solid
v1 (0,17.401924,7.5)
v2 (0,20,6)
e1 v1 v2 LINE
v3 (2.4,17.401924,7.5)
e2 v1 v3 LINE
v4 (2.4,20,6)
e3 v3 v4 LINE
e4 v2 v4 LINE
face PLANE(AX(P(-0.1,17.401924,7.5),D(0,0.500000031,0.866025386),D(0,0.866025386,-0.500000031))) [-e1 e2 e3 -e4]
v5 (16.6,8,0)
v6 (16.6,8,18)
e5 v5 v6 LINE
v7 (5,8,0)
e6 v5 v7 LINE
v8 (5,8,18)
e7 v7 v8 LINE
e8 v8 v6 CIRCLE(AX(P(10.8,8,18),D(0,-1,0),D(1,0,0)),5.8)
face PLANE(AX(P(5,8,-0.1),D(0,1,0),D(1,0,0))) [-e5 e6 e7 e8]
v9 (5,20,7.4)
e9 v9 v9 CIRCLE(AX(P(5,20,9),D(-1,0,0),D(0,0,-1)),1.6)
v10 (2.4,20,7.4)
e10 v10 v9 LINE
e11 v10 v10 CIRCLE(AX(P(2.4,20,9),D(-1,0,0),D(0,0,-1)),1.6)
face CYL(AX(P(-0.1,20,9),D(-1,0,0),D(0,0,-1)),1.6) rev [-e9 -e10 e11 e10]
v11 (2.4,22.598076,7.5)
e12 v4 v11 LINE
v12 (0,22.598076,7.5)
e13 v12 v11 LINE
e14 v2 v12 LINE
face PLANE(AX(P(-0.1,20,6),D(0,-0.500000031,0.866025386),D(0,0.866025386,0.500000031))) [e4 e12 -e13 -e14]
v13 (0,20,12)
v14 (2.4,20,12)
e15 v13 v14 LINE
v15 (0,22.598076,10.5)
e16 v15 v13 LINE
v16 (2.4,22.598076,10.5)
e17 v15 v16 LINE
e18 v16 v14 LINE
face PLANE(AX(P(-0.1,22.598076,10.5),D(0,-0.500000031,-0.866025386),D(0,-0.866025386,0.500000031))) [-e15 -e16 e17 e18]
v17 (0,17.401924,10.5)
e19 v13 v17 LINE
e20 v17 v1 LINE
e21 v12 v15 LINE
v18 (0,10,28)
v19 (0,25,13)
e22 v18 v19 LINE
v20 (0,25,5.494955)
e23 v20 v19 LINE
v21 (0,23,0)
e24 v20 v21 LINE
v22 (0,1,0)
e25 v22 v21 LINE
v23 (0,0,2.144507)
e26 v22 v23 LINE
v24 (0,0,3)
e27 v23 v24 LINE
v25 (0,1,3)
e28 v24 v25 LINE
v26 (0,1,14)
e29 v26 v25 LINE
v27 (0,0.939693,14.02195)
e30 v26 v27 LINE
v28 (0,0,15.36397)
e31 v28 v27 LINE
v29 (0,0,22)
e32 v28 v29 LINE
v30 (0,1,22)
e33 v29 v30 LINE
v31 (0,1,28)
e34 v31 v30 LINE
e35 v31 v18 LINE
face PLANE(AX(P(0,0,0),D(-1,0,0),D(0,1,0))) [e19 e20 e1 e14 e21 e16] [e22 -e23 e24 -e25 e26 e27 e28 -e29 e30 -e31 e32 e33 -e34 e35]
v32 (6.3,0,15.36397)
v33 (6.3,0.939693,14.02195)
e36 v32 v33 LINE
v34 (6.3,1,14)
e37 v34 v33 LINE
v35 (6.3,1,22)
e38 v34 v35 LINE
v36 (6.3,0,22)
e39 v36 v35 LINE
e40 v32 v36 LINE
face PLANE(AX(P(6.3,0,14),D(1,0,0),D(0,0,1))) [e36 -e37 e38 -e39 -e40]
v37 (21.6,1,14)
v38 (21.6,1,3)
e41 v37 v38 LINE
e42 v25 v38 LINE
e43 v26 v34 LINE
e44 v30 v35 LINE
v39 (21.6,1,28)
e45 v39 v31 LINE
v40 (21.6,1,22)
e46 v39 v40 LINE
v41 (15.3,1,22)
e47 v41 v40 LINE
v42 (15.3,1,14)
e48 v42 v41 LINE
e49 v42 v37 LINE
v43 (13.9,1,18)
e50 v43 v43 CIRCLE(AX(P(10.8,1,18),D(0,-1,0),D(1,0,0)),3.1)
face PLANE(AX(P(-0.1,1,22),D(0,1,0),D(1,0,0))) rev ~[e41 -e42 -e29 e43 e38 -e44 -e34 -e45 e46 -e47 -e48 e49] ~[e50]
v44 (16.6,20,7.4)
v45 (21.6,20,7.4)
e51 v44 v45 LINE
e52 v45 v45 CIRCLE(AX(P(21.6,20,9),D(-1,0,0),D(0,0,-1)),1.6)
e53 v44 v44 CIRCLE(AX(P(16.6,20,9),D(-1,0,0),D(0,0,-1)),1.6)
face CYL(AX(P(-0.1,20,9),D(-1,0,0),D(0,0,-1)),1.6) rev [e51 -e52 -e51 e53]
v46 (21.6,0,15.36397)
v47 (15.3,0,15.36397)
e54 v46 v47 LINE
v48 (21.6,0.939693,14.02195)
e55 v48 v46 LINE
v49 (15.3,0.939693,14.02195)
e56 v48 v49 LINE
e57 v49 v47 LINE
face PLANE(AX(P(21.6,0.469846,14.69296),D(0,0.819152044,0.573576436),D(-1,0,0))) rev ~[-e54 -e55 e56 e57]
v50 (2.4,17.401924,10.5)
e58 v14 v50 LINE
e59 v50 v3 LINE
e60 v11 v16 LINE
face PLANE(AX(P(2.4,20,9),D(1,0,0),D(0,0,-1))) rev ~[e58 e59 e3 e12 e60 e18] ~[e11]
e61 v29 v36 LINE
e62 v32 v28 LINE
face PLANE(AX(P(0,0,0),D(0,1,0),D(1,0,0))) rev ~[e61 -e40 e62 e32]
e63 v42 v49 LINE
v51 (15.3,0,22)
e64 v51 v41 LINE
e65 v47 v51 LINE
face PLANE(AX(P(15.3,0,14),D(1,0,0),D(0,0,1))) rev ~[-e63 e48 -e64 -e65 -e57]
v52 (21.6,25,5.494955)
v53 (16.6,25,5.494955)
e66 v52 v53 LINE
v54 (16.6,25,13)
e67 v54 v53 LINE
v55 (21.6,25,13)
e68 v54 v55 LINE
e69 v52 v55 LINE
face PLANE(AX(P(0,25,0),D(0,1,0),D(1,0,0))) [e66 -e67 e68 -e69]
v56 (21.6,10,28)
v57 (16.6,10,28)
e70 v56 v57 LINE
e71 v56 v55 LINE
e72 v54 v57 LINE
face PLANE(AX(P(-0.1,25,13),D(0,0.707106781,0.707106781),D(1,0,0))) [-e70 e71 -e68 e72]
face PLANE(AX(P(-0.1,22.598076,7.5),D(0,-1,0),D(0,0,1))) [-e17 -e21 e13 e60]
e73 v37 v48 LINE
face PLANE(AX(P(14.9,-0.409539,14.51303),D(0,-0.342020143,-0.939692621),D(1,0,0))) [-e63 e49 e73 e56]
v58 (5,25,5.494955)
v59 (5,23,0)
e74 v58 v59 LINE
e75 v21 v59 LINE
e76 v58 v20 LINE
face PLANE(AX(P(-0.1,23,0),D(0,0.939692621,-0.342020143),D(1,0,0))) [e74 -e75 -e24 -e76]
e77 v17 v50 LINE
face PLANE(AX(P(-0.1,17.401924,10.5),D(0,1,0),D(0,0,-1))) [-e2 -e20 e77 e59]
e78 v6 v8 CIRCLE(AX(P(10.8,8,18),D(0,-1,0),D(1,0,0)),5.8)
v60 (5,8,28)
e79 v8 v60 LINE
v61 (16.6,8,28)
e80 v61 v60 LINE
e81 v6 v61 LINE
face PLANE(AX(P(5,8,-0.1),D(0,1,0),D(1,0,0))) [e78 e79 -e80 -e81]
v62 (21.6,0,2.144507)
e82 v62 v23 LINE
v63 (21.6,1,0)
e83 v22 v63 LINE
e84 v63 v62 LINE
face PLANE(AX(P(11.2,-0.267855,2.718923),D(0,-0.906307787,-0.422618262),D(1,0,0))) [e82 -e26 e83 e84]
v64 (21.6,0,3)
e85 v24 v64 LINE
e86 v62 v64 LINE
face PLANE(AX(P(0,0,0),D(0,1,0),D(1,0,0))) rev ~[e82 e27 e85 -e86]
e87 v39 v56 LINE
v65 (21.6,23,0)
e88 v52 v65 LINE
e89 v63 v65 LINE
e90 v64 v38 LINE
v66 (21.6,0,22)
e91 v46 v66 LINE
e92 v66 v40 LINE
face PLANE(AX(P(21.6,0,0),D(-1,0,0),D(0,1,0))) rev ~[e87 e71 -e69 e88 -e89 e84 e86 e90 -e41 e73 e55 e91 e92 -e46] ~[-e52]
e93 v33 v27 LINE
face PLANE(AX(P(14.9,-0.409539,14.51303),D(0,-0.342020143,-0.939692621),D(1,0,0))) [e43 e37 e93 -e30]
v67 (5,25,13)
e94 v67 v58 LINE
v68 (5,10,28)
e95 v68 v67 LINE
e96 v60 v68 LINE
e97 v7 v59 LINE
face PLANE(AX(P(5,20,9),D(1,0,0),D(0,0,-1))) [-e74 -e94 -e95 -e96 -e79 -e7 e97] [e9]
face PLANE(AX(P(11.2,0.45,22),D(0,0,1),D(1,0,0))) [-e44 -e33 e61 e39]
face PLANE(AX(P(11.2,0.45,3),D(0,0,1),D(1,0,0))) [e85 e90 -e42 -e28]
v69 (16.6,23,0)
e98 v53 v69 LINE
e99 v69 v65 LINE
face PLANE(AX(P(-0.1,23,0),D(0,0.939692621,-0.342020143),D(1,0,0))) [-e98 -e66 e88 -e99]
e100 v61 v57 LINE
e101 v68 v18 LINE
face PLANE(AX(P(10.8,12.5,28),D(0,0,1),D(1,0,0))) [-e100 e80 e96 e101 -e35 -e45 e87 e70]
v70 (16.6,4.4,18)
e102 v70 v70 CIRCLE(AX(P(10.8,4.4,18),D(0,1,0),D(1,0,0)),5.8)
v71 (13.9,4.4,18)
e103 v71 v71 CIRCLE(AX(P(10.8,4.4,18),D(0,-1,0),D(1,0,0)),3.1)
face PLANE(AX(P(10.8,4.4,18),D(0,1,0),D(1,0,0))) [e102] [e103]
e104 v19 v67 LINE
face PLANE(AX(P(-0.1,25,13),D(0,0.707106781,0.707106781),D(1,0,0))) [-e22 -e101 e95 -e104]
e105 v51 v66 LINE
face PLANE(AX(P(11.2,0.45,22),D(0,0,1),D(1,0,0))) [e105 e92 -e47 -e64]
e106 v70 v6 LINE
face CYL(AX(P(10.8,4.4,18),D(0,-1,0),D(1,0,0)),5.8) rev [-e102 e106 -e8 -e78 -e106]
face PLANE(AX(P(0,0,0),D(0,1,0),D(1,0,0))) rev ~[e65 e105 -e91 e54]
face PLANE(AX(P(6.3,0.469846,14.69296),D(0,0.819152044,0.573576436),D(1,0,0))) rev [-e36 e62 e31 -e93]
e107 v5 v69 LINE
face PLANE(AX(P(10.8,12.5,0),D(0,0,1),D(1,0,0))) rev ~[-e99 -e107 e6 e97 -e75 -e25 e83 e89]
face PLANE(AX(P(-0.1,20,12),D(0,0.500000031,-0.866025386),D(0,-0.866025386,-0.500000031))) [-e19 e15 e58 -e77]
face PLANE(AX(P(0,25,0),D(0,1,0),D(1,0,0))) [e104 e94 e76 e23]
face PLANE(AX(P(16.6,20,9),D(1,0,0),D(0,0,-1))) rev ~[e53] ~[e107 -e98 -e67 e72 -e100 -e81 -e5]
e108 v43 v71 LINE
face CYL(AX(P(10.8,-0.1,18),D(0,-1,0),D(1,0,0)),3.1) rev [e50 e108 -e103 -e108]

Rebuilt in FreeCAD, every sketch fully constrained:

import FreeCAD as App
import Part
import Sketcher
from FreeCAD import Vector
Q = App.Units.Quantity


def edges_at(feature, points):
    """Names of the edges that pass closest to the given points."""
    edges = feature.Shape.Edges
    near = lambda p: min(range(len(edges)), key=lambda i: edges[i].distToShape(Part.Vertex(*p))[0])
    return sorted({f"Edge{near(p) + 1}" for p in points})

doc = App.newDocument("Part")
params = doc.addObject("Spreadsheet::Sheet", "Params")
for row, (alias, value) in enumerate([
    ("sketch1_diameter", "3.2 mm"),
    ("pad1_length", "22.6 mm"),
    ("sketch2_diameter", "6.2 mm"),
    ("pad2_length", "25 mm"),
    ("sketch3_diameter", "11.6 mm"),
    ("pad3_length", "25 mm"),
    ("sketch4_width", "22.6 mm"),
    ("sketch4_height", "1.1 mm"),
    ("pad4_length", "11 mm"),
    ("sketch5_width", "22.6 mm"),
    ("sketch5_height", "1.1 mm"),
    ("pad5_length", "11 mm"),
    ("sketch6_width", "30 mm"),
    ("sketch6_height", "3 mm"),
    ("pad6_length", "8 mm"),
    ("sketch7_height", "3 mm"),
    ("sketch7_length", "3 mm"),
    ("pad7_length", "2.5 mm"),
    ("sketch8_height", "6 mm"),
    ("sketch8_width", "22.6 mm"),
    ("pad8_length", "6 mm"),
    ("sketch9_height", "27 mm"),
    ("sketch9_width", "22.6 mm"),
    ("pad9_length", "28 mm"),
    ("sketch10_height", "10 mm"),
    ("sketch10_width", "22.6 mm"),
    ("pad10_length", "10 mm"),
    ("sketch11_diameter", "22 mm"),
    ("pad11_length", "11.6 mm"),
    ("sketch12_height", "25 mm"),
    ("sketch12_width", "11.6 mm"),
    ("pad12_length", "29 mm"),
    ("sketch13_height", "25 mm"),
    ("sketch13_width", "21.6 mm"),
    ("pad13_length", "28 mm"),
    ("sketch14_width", "9 mm"),
    ("sketch14_height", "8 mm"),
    ("pocket1_length", "1 mm"),
    ("chamfer_size", "1 mm"),
], start=1):
    params.set(f"A{row}", alias)
    params.set(f"B{row}", "=" + value)
    params.setAlias(f"B{row}", alias)

body = doc.addObject("PartDesign::Body", "Body")

sketch1 = doc.addObject("Sketcher::SketchObject", "Sketch")
body.addObject(sketch1)
sketch1.AttachmentSupport = (doc.YZ_Plane, [""])
sketch1.MapMode = "FlatFace"
sketch1.AttachmentOffset = App.Placement(Vector(0, 0, -0.1), App.Rotation())
sketch1.addGeometry(Part.Circle(Vector(20, 9, 0), Vector(0, 0, 1), 1.6), False)
sketch1.addConstraint(Sketcher.Constraint("Diameter", 0, Q("3.2 mm")))
sketch1.addConstraint(Sketcher.Constraint("DistanceX", -1, 1, 0, 3, Q("20 mm")))
sketch1.addConstraint(Sketcher.Constraint("DistanceY", -1, 1, 0, 3, Q("9 mm")))
sketch1.setExpression("Constraints[0]", "Params.sketch1_diameter")
pad1 = doc.addObject("PartDesign::Pad", "Pad")
body.addObject(pad1)
pad1.Profile = sketch1
pad1.setExpression("Length", "Params.pad1_length")
body2 = doc.addObject("PartDesign::Body", "Body001")

sketch2 = doc.addObject("Sketcher::SketchObject", "Sketch001")
body2.addObject(sketch2)
sketch2.AttachmentSupport = (doc.getObject("XZ_Plane001"), [""])
sketch2.MapMode = "FlatFace"
sketch2.AttachmentOffset = App.Placement(Vector(0, 0, 0.1), App.Rotation())
sketch2.addGeometry(Part.Circle(Vector(10.8, 18, 0), Vector(0, 0, 1), 3.1), False)
sketch2.addConstraint(Sketcher.Constraint("Diameter", 0, Q("6.2 mm")))
sketch2.addConstraint(Sketcher.Constraint("DistanceY", -1, 1, 0, 3, Q("18 mm")))
sketch2.addConstraint(Sketcher.Constraint("DistanceX", -1, 1, 0, 3, Q("10.8 mm")))
sketch2.setExpression("Constraints[0]", "Params.sketch2_diameter")
pad2 = doc.addObject("PartDesign::Pad", "Pad001")
body2.addObject(pad2)
pad2.Profile = sketch2
pad2.setExpression("Length", "Params.pad2_length")
pad2.Reversed = True
body3 = doc.addObject("PartDesign::Body", "Body002")

sketch3 = doc.addObject("Sketcher::SketchObject", "Sketch002")
body3.addObject(sketch3)
sketch3.AttachmentSupport = (doc.getObject("XZ_Plane002"), [""])
sketch3.MapMode = "FlatFace"
sketch3.AttachmentOffset = App.Placement(Vector(0, 0, -4.4), App.Rotation())
sketch3.addGeometry(Part.Circle(Vector(11, 18, 0), Vector(0, 0, 1), 6), False)
sketch3.addConstraint(Sketcher.Constraint("Diameter", 0, Q("11.6 mm")))
sketch3.addConstraint(Sketcher.Constraint("DistanceY", -1, 1, 0, 3, Q("18 mm")))
sketch3.addConstraint(Sketcher.Constraint("DistanceX", -1, 1, 0, 3, Q("10.8 mm")))
sketch3.setExpression("Constraints[0]", "Params.sketch3_diameter")
pad3 = doc.addObject("PartDesign::Pad", "Pad002")
body3.addObject(pad3)
pad3.Profile = sketch3
pad3.setExpression("Length", "Params.pad3_length")
pad3.Reversed = True
body4 = doc.addObject("PartDesign::Body", "Body003")

sketch4 = doc.addObject("Sketcher::SketchObject", "Sketch003")
body4.addObject(sketch4)
sketch4.AttachmentSupport = (doc.getObject("XY_Plane003"), [""])
sketch4.MapMode = "FlatFace"
sketch4.AttachmentOffset = App.Placement(Vector(0, 0, 3), App.Rotation())
sketch4.addGeometry(Part.LineSegment(Vector(-0.1, 1, 0), Vector(-0.1, -0.1, 0)), False)
sketch4.addGeometry(Part.LineSegment(Vector(-0.1, -0.1, 0), Vector(22.5, -0.1, 0)), False)
sketch4.addGeometry(Part.LineSegment(Vector(22.5, -0.1, 0), Vector(22.5, 1, 0)), False)
sketch4.addGeometry(Part.LineSegment(Vector(22.5, 1, 0), Vector(-0.1, 1, 0)), False)
sketch4.addConstraint(Sketcher.Constraint("Coincident", 0, 2, 1, 1))
sketch4.addConstraint(Sketcher.Constraint("Coincident", 1, 2, 2, 1))
sketch4.addConstraint(Sketcher.Constraint("Coincident", 2, 2, 3, 1))
sketch4.addConstraint(Sketcher.Constraint("Coincident", 3, 2, 0, 1))
sketch4.addConstraint(Sketcher.Constraint("Vertical", 0))
sketch4.addConstraint(Sketcher.Constraint("Horizontal", 1))
sketch4.addConstraint(Sketcher.Constraint("Vertical", 2))
sketch4.addConstraint(Sketcher.Constraint("Horizontal", 3))
sketch4.addConstraint(Sketcher.Constraint("DistanceX", 1, 1, 1, 2, Q("22.6 mm")))
sketch4.addConstraint(Sketcher.Constraint("DistanceY", 0, 2, 0, 1, Q("1.1 mm")))
sketch4.addConstraint(Sketcher.Constraint("DistanceY", -1, 1, 2, 2, Q("1 mm")))
sketch4.addConstraint(Sketcher.Constraint("DistanceX", 0, 2, -1, 1, Q("0.1 mm")))
sketch4.setExpression("Constraints[8]", "Params.sketch4_width")
sketch4.setExpression("Constraints[9]", "Params.sketch4_height")
pad4 = doc.addObject("PartDesign::Pad", "Pad003")
body4.addObject(pad4)
pad4.Profile = sketch4
pad4.setExpression("Length", "Params.pad4_length")
body5 = doc.addObject("PartDesign::Body", "Body004")

sketch5 = doc.addObject("Sketcher::SketchObject", "Sketch004")
body5.addObject(sketch5)
sketch5.AttachmentSupport = (doc.getObject("XY_Plane004"), [""])
sketch5.MapMode = "FlatFace"
sketch5.AttachmentOffset = App.Placement(Vector(0, 0, 22), App.Rotation())
sketch5.addGeometry(Part.LineSegment(Vector(-0.1, 1, 0), Vector(-0.1, -0.1, 0)), False)
sketch5.addGeometry(Part.LineSegment(Vector(-0.1, -0.1, 0), Vector(22.5, -0.1, 0)), False)
sketch5.addGeometry(Part.LineSegment(Vector(22.5, -0.1, 0), Vector(22.5, 1, 0)), False)
sketch5.addGeometry(Part.LineSegment(Vector(22.5, 1, 0), Vector(-0.1, 1, 0)), False)
sketch5.addConstraint(Sketcher.Constraint("Coincident", 0, 2, 1, 1))
sketch5.addConstraint(Sketcher.Constraint("Coincident", 1, 2, 2, 1))
sketch5.addConstraint(Sketcher.Constraint("Coincident", 2, 2, 3, 1))
sketch5.addConstraint(Sketcher.Constraint("Coincident", 3, 2, 0, 1))
sketch5.addConstraint(Sketcher.Constraint("Vertical", 0))
sketch5.addConstraint(Sketcher.Constraint("Horizontal", 1))
sketch5.addConstraint(Sketcher.Constraint("Vertical", 2))
sketch5.addConstraint(Sketcher.Constraint("Horizontal", 3))
sketch5.addConstraint(Sketcher.Constraint("DistanceX", 1, 1, 1, 2, Q("22.6 mm")))
sketch5.addConstraint(Sketcher.Constraint("DistanceY", 0, 2, 0, 1, Q("1.1 mm")))
sketch5.addConstraint(Sketcher.Constraint("DistanceY", -1, 1, 2, 2, Q("1 mm")))
sketch5.addConstraint(Sketcher.Constraint("DistanceX", 0, 2, -1, 1, Q("0.1 mm")))
sketch5.setExpression("Constraints[8]", "Params.sketch5_width")
sketch5.setExpression("Constraints[9]", "Params.sketch5_height")
pad5 = doc.addObject("PartDesign::Pad", "Pad004")
body5.addObject(pad5)
pad5.Profile = sketch5
pad5.setExpression("Length", "Params.pad5_length")
body6 = doc.addObject("PartDesign::Body", "Body005")

sketch6 = doc.addObject("Sketcher::SketchObject", "Sketch005")
body6.addObject(sketch6)
sketch6.AttachmentSupport = (doc.getObject("XY_Plane005"), [""])
sketch6.MapMode = "FlatFace"
sketch6.addGeometry(Part.LineSegment(Vector(0, 3, 0), Vector(0, 0, 0)), False)
sketch6.addGeometry(Part.LineSegment(Vector(0, 0, 0), Vector(30, 0, 0)), False)
sketch6.addGeometry(Part.LineSegment(Vector(30, 0, 0), Vector(30, 3, 0)), False)
sketch6.addGeometry(Part.LineSegment(Vector(30, 3, 0), Vector(0, 3, 0)), False)
sketch6.addConstraint(Sketcher.Constraint("Coincident", 0, 2, 1, 1))
sketch6.addConstraint(Sketcher.Constraint("Coincident", 1, 2, 2, 1))
sketch6.addConstraint(Sketcher.Constraint("Coincident", 2, 2, 3, 1))
sketch6.addConstraint(Sketcher.Constraint("Coincident", 3, 2, 0, 1))
sketch6.addConstraint(Sketcher.Constraint("Vertical", 0))
sketch6.addConstraint(Sketcher.Constraint("Horizontal", 1))
sketch6.addConstraint(Sketcher.Constraint("Vertical", 2))
sketch6.addConstraint(Sketcher.Constraint("Horizontal", 3))
sketch6.addConstraint(Sketcher.Constraint("Coincident", 0, 2, -1, 1))
sketch6.addConstraint(Sketcher.Constraint("DistanceX", 1, 1, 1, 2, Q("30 mm")))
sketch6.addConstraint(Sketcher.Constraint("DistanceY", 0, 2, 0, 1, Q("3 mm")))
sketch6.setExpression("Constraints[9]", "Params.sketch6_width")
sketch6.setExpression("Constraints[10]", "Params.sketch6_height")
pad6 = doc.addObject("PartDesign::Pad", "Pad005")
body6.addObject(pad6)
pad6.Profile = sketch6
pad6.setExpression("Length", "Params.pad6_length")
body7 = doc.addObject("PartDesign::Body", "Body006")
doc.recompute()

body6.Placement = App.Placement(Vector(-0.1, 1, 14), App.Rotation(Vector(1, 0, 0), 160))
boolean = doc.addObject("PartDesign::Boolean", "Boolean")
body7.addObject(boolean)
boolean.Type = "Fuse"
boolean.addObjects([body6])
body8 = doc.addObject("PartDesign::Body", "Body007")

sketch7 = doc.addObject("Sketcher::SketchObject", "Sketch006")
body8.addObject(sketch7)
sketch7.AttachmentSupport = (doc.getObject("YZ_Plane007"), [""])
sketch7.MapMode = "FlatFace"
sketch7.AttachmentOffset = App.Placement(Vector(0, 0, -0.1), App.Rotation())
sketch7.addGeometry(Part.LineSegment(Vector(20, 6, 0), Vector(22.6, 7.5, 0)), False)
sketch7.addGeometry(Part.LineSegment(Vector(22.6, 7.5, 0), Vector(22.6, 10.5, 0)), False)
sketch7.addGeometry(Part.LineSegment(Vector(22.6, 10.5, 0), Vector(20, 12, 0)), False)
sketch7.addGeometry(Part.LineSegment(Vector(20, 12, 0), Vector(17.4, 10.5, 0)), False)
sketch7.addGeometry(Part.LineSegment(Vector(17.4, 10.5, 0), Vector(17.4, 7.5, 0)), False)
sketch7.addGeometry(Part.LineSegment(Vector(17.4, 7.5, 0), Vector(20, 6, 0)), False)
sketch7.addConstraint(Sketcher.Constraint("Coincident", 0, 2, 1, 1))
sketch7.addConstraint(Sketcher.Constraint("Coincident", 1, 2, 2, 1))
sketch7.addConstraint(Sketcher.Constraint("Coincident", 2, 2, 3, 1))
sketch7.addConstraint(Sketcher.Constraint("Coincident", 3, 2, 4, 1))
sketch7.addConstraint(Sketcher.Constraint("Coincident", 4, 2, 5, 1))
sketch7.addConstraint(Sketcher.Constraint("Coincident", 5, 2, 0, 1))
sketch7.addConstraint(Sketcher.Constraint("Vertical", 1))
sketch7.addConstraint(Sketcher.Constraint("Vertical", 4))
sketch7.addConstraint(Sketcher.Constraint("Parallel", 0, 3))
sketch7.addConstraint(Sketcher.Constraint("Parallel", 2, 5))
sketch7.addConstraint(Sketcher.Constraint("Horizontal", 1, 2, 3, 2))
sketch7.addConstraint(Sketcher.Constraint("Horizontal", 0, 2, 4, 2))
sketch7.addConstraint(Sketcher.Constraint("Vertical", 2, 2, 5, 2))
sketch7.addConstraint(Sketcher.Constraint("DistanceY", 1, 1, 1, 2, Q("3 mm")))
sketch7.addConstraint(Sketcher.Constraint("Angle", 0, Q("30.000002 deg")))
sketch7.addConstraint(Sketcher.Constraint("Distance", 0, Q("3 mm")))
sketch7.addConstraint(Sketcher.Constraint("DistanceX", -1, 1, 2, 2, Q("20 mm")))
sketch7.addConstraint(Sketcher.Constraint("DistanceY", -1, 1, 2, 2, Q("12 mm")))
sketch7.setExpression("Constraints[13]", "Params.sketch7_height")
sketch7.setExpression("Constraints[15]", "Params.sketch7_length")
pad7 = doc.addObject("PartDesign::Pad", "Pad006")
body8.addObject(pad7)
pad7.Profile = sketch7
pad7.setExpression("Length", "Params.pad7_length")
body9 = doc.addObject("PartDesign::Body", "Body008")

sketch8 = doc.addObject("Sketcher::SketchObject", "Sketch007")
body9.addObject(sketch8)
sketch8.AttachmentSupport = (doc.getObject("XY_Plane008"), [""])
sketch8.MapMode = "FlatFace"
sketch8.addGeometry(Part.LineSegment(Vector(0, 6, 0), Vector(0, 0, 0)), False)
sketch8.addGeometry(Part.LineSegment(Vector(0, 0, 0), Vector(23, 0, 0)), False)
sketch8.addGeometry(Part.LineSegment(Vector(23, 0, 0), Vector(23, 6, 0)), False)
sketch8.addGeometry(Part.LineSegment(Vector(23, 6, 0), Vector(0, 6, 0)), False)
sketch8.addConstraint(Sketcher.Constraint("Coincident", 0, 2, 1, 1))
sketch8.addConstraint(Sketcher.Constraint("Coincident", 1, 2, 2, 1))
sketch8.addConstraint(Sketcher.Constraint("Coincident", 2, 2, 3, 1))
sketch8.addConstraint(Sketcher.Constraint("Coincident", 3, 2, 0, 1))
sketch8.addConstraint(Sketcher.Constraint("Vertical", 0))
sketch8.addConstraint(Sketcher.Constraint("Horizontal", 1))
sketch8.addConstraint(Sketcher.Constraint("Vertical", 2))
sketch8.addConstraint(Sketcher.Constraint("Horizontal", 3))
sketch8.addConstraint(Sketcher.Constraint("Coincident", 0, 2, -1, 1))
sketch8.addConstraint(Sketcher.Constraint("DistanceY", 0, 2, 0, 1, Q("6 mm")))
sketch8.addConstraint(Sketcher.Constraint("DistanceX", 1, 1, 1, 2, Q("22.6 mm")))
sketch8.setExpression("Constraints[9]", "Params.sketch8_height")
sketch8.setExpression("Constraints[10]", "Params.sketch8_width")
pad8 = doc.addObject("PartDesign::Pad", "Pad007")
body9.addObject(pad8)
pad8.Profile = sketch8
pad8.setExpression("Length", "Params.pad8_length")
body10 = doc.addObject("PartDesign::Body", "Body009")
doc.recompute()

body9.Placement = App.Placement(Vector(-0.1, 1, 0), App.Rotation(Vector(1, 0, 0), 115))
boolean2 = doc.addObject("PartDesign::Boolean", "Boolean001")
body10.addObject(boolean2)
boolean2.Type = "Fuse"
boolean2.addObjects([body9])
body11 = doc.addObject("PartDesign::Body", "Body010")

sketch9 = doc.addObject("Sketcher::SketchObject", "Sketch008")
body11.addObject(sketch9)
sketch9.AttachmentSupport = (doc.getObject("XY_Plane010"), [""])
sketch9.MapMode = "FlatFace"
sketch9.addGeometry(Part.LineSegment(Vector(0, 27, 0), Vector(0, 0, 0)), False)
sketch9.addGeometry(Part.LineSegment(Vector(0, 0, 0), Vector(23, 0, 0)), False)
sketch9.addGeometry(Part.LineSegment(Vector(23, 0, 0), Vector(23, 27, 0)), False)
sketch9.addGeometry(Part.LineSegment(Vector(23, 27, 0), Vector(0, 27, 0)), False)
sketch9.addConstraint(Sketcher.Constraint("Coincident", 0, 2, 1, 1))
sketch9.addConstraint(Sketcher.Constraint("Coincident", 1, 2, 2, 1))
sketch9.addConstraint(Sketcher.Constraint("Coincident", 2, 2, 3, 1))
sketch9.addConstraint(Sketcher.Constraint("Coincident", 3, 2, 0, 1))
sketch9.addConstraint(Sketcher.Constraint("Vertical", 0))
sketch9.addConstraint(Sketcher.Constraint("Horizontal", 1))
sketch9.addConstraint(Sketcher.Constraint("Vertical", 2))
sketch9.addConstraint(Sketcher.Constraint("Horizontal", 3))
sketch9.addConstraint(Sketcher.Constraint("Coincident", 0, 2, -1, 1))
sketch9.addConstraint(Sketcher.Constraint("DistanceY", 0, 2, 0, 1, Q("27 mm")))
sketch9.addConstraint(Sketcher.Constraint("DistanceX", 1, 1, 1, 2, Q("22.6 mm")))
sketch9.setExpression("Constraints[9]", "Params.sketch9_height")
sketch9.setExpression("Constraints[10]", "Params.sketch9_width")
pad9 = doc.addObject("PartDesign::Pad", "Pad008")
body11.addObject(pad9)
pad9.Profile = sketch9
pad9.setExpression("Length", "Params.pad9_length")
body12 = doc.addObject("PartDesign::Body", "Body011")
doc.recompute()

body11.Placement = App.Placement(Vector(-0.1, 25, 13), App.Rotation(Vector(1, 0, 0), 45))
boolean3 = doc.addObject("PartDesign::Boolean", "Boolean002")
body12.addObject(boolean3)
boolean3.Type = "Fuse"
boolean3.addObjects([body11])
body13 = doc.addObject("PartDesign::Body", "Body012")

sketch10 = doc.addObject("Sketcher::SketchObject", "Sketch009")
body13.addObject(sketch10)
sketch10.AttachmentSupport = (doc.getObject("XY_Plane012"), [""])
sketch10.MapMode = "FlatFace"
sketch10.addGeometry(Part.LineSegment(Vector(0, 10, 0), Vector(0, 0, 0)), False)
sketch10.addGeometry(Part.LineSegment(Vector(0, 0, 0), Vector(23, 0, 0)), False)
sketch10.addGeometry(Part.LineSegment(Vector(23, 0, 0), Vector(23, 10, 0)), False)
sketch10.addGeometry(Part.LineSegment(Vector(23, 10, 0), Vector(0, 10, 0)), False)
sketch10.addConstraint(Sketcher.Constraint("Coincident", 0, 2, 1, 1))
sketch10.addConstraint(Sketcher.Constraint("Coincident", 1, 2, 2, 1))
sketch10.addConstraint(Sketcher.Constraint("Coincident", 2, 2, 3, 1))
sketch10.addConstraint(Sketcher.Constraint("Coincident", 3, 2, 0, 1))
sketch10.addConstraint(Sketcher.Constraint("Vertical", 0))
sketch10.addConstraint(Sketcher.Constraint("Horizontal", 1))
sketch10.addConstraint(Sketcher.Constraint("Vertical", 2))
sketch10.addConstraint(Sketcher.Constraint("Horizontal", 3))
sketch10.addConstraint(Sketcher.Constraint("Coincident", 0, 2, -1, 1))
sketch10.addConstraint(Sketcher.Constraint("DistanceY", 0, 2, 0, 1, Q("10 mm")))
sketch10.addConstraint(Sketcher.Constraint("DistanceX", 1, 1, 1, 2, Q("22.6 mm")))
sketch10.setExpression("Constraints[9]", "Params.sketch10_height")
sketch10.setExpression("Constraints[10]", "Params.sketch10_width")
pad10 = doc.addObject("PartDesign::Pad", "Pad009")
body13.addObject(pad10)
pad10.Profile = sketch10
pad10.setExpression("Length", "Params.pad10_length")
body14 = doc.addObject("PartDesign::Body", "Body013")
doc.recompute()

body13.Placement = App.Placement(Vector(-0.1, 23, 0), App.Rotation(Vector(-1, 0, 0), 20))
boolean4 = doc.addObject("PartDesign::Boolean", "Boolean003")
body14.addObject(boolean4)
boolean4.Type = "Fuse"
boolean4.addObjects([body13])
body15 = doc.addObject("PartDesign::Body", "Body014")

sketch11 = doc.addObject("Sketcher::SketchObject", "Sketch010")
body15.addObject(sketch11)
sketch11.AttachmentSupport = (doc.getObject("YZ_Plane014"), [""])
sketch11.MapMode = "FlatFace"
sketch11.AttachmentOffset = App.Placement(Vector(0, 0, 5), App.Rotation())
sketch11.addGeometry(Part.Circle(Vector(20, 9, 0), Vector(0, 0, 1), 11), False)
sketch11.addConstraint(Sketcher.Constraint("Diameter", 0, Q("22 mm")))
sketch11.addConstraint(Sketcher.Constraint("DistanceX", -1, 1, 0, 3, Q("20 mm")))
sketch11.addConstraint(Sketcher.Constraint("DistanceY", -1, 1, 0, 3, Q("9 mm")))
sketch11.setExpression("Constraints[0]", "Params.sketch11_diameter")
pad11 = doc.addObject("PartDesign::Pad", "Pad010")
body15.addObject(pad11)
pad11.Profile = sketch11
pad11.setExpression("Length", "Params.pad11_length")
body16 = doc.addObject("PartDesign::Body", "Body015")
body16.AllowCompound = True

sketch12 = doc.addObject("Sketcher::SketchObject", "Sketch011")
body16.addObject(sketch12)
sketch12.AttachmentSupport = (doc.getObject("XY_Plane015"), [""])
sketch12.MapMode = "FlatFace"
sketch12.AttachmentOffset = App.Placement(Vector(0, 0, -0.1), App.Rotation())
sketch12.addGeometry(Part.LineSegment(Vector(5, 33, 0), Vector(5, 8, 0)), False)
sketch12.addGeometry(Part.LineSegment(Vector(5, 8, 0), Vector(17, 8, 0)), False)
sketch12.addGeometry(Part.LineSegment(Vector(17, 8, 0), Vector(17, 33, 0)), False)
sketch12.addGeometry(Part.LineSegment(Vector(17, 33, 0), Vector(5, 33, 0)), False)
sketch12.addConstraint(Sketcher.Constraint("Coincident", 0, 2, 1, 1))
sketch12.addConstraint(Sketcher.Constraint("Coincident", 1, 2, 2, 1))
sketch12.addConstraint(Sketcher.Constraint("Coincident", 2, 2, 3, 1))
sketch12.addConstraint(Sketcher.Constraint("Coincident", 3, 2, 0, 1))
sketch12.addConstraint(Sketcher.Constraint("Vertical", 0))
sketch12.addConstraint(Sketcher.Constraint("Horizontal", 1))
sketch12.addConstraint(Sketcher.Constraint("Vertical", 2))
sketch12.addConstraint(Sketcher.Constraint("Horizontal", 3))
sketch12.addConstraint(Sketcher.Constraint("DistanceY", 0, 2, 0, 1, Q("25 mm")))
sketch12.addConstraint(Sketcher.Constraint("DistanceX", 1, 1, 1, 2, Q("11.6 mm")))
sketch12.addConstraint(Sketcher.Constraint("DistanceX", -1, 1, 0, 2, Q("5 mm")))
sketch12.addConstraint(Sketcher.Constraint("DistanceY", -1, 1, 0, 2, Q("8 mm")))
sketch12.setExpression("Constraints[8]", "Params.sketch12_height")
sketch12.setExpression("Constraints[9]", "Params.sketch12_width")
pad12 = doc.addObject("PartDesign::Pad", "Pad011")
body16.addObject(pad12)
pad12.Profile = sketch12
pad12.setExpression("Length", "Params.pad12_length")
doc.recompute()

boolean5 = doc.addObject("PartDesign::Boolean", "Boolean004")
body16.addObject(boolean5)
boolean5.Type = "Fuse"
boolean5.addObjects([body])
doc.recompute()

boolean6 = doc.addObject("PartDesign::Boolean", "Boolean005")
body16.addObject(boolean6)
boolean6.Type = "Fuse"
boolean6.addObjects([body2])
doc.recompute()

boolean7 = doc.addObject("PartDesign::Boolean", "Boolean006")
body16.addObject(boolean7)
boolean7.Type = "Fuse"
boolean7.addObjects([body3])
doc.recompute()

boolean8 = doc.addObject("PartDesign::Boolean", "Boolean007")
body16.addObject(boolean8)
boolean8.Type = "Fuse"
boolean8.addObjects([body4])
doc.recompute()

boolean9 = doc.addObject("PartDesign::Boolean", "Boolean008")
body16.addObject(boolean9)
boolean9.Type = "Fuse"
boolean9.addObjects([body5])
doc.recompute()

boolean10 = doc.addObject("PartDesign::Boolean", "Boolean009")
body16.addObject(boolean10)
boolean10.Type = "Fuse"
boolean10.addObjects([body7])
doc.recompute()

boolean11 = doc.addObject("PartDesign::Boolean", "Boolean010")
body16.addObject(boolean11)
boolean11.Type = "Fuse"
boolean11.addObjects([body8])
doc.recompute()

boolean12 = doc.addObject("PartDesign::Boolean", "Boolean011")
body16.addObject(boolean12)
boolean12.Type = "Fuse"
boolean12.addObjects([body10])
doc.recompute()

boolean13 = doc.addObject("PartDesign::Boolean", "Boolean012")
body16.addObject(boolean13)
boolean13.Type = "Fuse"
boolean13.addObjects([body12])
doc.recompute()

boolean14 = doc.addObject("PartDesign::Boolean", "Boolean013")
body16.addObject(boolean14)
boolean14.Type = "Fuse"
boolean14.addObjects([body14])
doc.recompute()

boolean15 = doc.addObject("PartDesign::Boolean", "Boolean014")
body16.addObject(boolean15)
boolean15.Type = "Fuse"
boolean15.addObjects([body15])
body17 = doc.addObject("PartDesign::Body", "Body016")

sketch13 = doc.addObject("Sketcher::SketchObject", "Sketch012")
body17.addObject(sketch13)
sketch13.AttachmentSupport = (doc.getObject("XY_Plane016"), [""])
sketch13.MapMode = "FlatFace"
sketch13.addGeometry(Part.LineSegment(Vector(0, 25, 0), Vector(0, 0, 0)), False)
sketch13.addGeometry(Part.LineSegment(Vector(0, 0, 0), Vector(22, 0, 0)), False)
sketch13.addGeometry(Part.LineSegment(Vector(22, 0, 0), Vector(22, 25, 0)), False)
sketch13.addGeometry(Part.LineSegment(Vector(22, 25, 0), Vector(0, 25, 0)), False)
sketch13.addConstraint(Sketcher.Constraint("Coincident", 0, 2, 1, 1))
sketch13.addConstraint(Sketcher.Constraint("Coincident", 1, 2, 2, 1))
sketch13.addConstraint(Sketcher.Constraint("Coincident", 2, 2, 3, 1))
sketch13.addConstraint(Sketcher.Constraint("Coincident", 3, 2, 0, 1))
sketch13.addConstraint(Sketcher.Constraint("Vertical", 0))
sketch13.addConstraint(Sketcher.Constraint("Horizontal", 1))
sketch13.addConstraint(Sketcher.Constraint("Vertical", 2))
sketch13.addConstraint(Sketcher.Constraint("Horizontal", 3))
sketch13.addConstraint(Sketcher.Constraint("Coincident", 0, 2, -1, 1))
sketch13.addConstraint(Sketcher.Constraint("DistanceY", 0, 2, 0, 1, Q("25 mm")))
sketch13.addConstraint(Sketcher.Constraint("DistanceX", 1, 1, 1, 2, Q("21.6 mm")))
sketch13.setExpression("Constraints[9]", "Params.sketch13_height")
sketch13.setExpression("Constraints[10]", "Params.sketch13_width")
pad13 = doc.addObject("PartDesign::Pad", "Pad012")
body17.addObject(pad13)
pad13.Profile = sketch13
pad13.setExpression("Length", "Params.pad13_length")
doc.recompute()

boolean16 = doc.addObject("PartDesign::Boolean", "Boolean015")
body17.addObject(boolean16)
boolean16.Type = "Cut"
boolean16.addObjects([body16])

sketch14 = doc.addObject("Sketcher::SketchObject", "Sketch013")
body17.addObject(sketch14)
sketch14.AttachmentSupport = (doc.getObject("XZ_Plane016"), [""])
sketch14.MapMode = "FlatFace"
sketch14.addGeometry(Part.LineSegment(Vector(6, 22, 0), Vector(6, 14, 0)), False)
sketch14.addGeometry(Part.LineSegment(Vector(6, 14, 0), Vector(15, 14, 0)), False)
sketch14.addGeometry(Part.LineSegment(Vector(15, 14, 0), Vector(15, 22, 0)), False)
sketch14.addGeometry(Part.LineSegment(Vector(15, 22, 0), Vector(6, 22, 0)), False)
sketch14.addConstraint(Sketcher.Constraint("Coincident", 0, 2, 1, 1))
sketch14.addConstraint(Sketcher.Constraint("Coincident", 1, 2, 2, 1))
sketch14.addConstraint(Sketcher.Constraint("Coincident", 2, 2, 3, 1))
sketch14.addConstraint(Sketcher.Constraint("Coincident", 3, 2, 0, 1))
sketch14.addConstraint(Sketcher.Constraint("Vertical", 0))
sketch14.addConstraint(Sketcher.Constraint("Horizontal", 1))
sketch14.addConstraint(Sketcher.Constraint("Vertical", 2))
sketch14.addConstraint(Sketcher.Constraint("Horizontal", 3))
sketch14.addConstraint(Sketcher.Constraint("DistanceX", 1, 1, 1, 2, Q("9 mm")))
sketch14.addConstraint(Sketcher.Constraint("DistanceY", 0, 2, 0, 1, Q("8 mm")))
sketch14.addConstraint(Sketcher.Constraint("DistanceY", -1, 1, 0, 2, Q("14 mm")))
sketch14.addConstraint(Sketcher.Constraint("DistanceX", -1, 1, 0, 2, Q("6.3 mm")))
sketch14.setExpression("Constraints[8]", "Params.sketch14_width")
sketch14.setExpression("Constraints[9]", "Params.sketch14_height")
pocket1 = doc.addObject("PartDesign::Pocket", "Pocket")
body17.addObject(pocket1)
pocket1.Profile = sketch14
pocket1.setExpression("Length", "Params.pocket1_length")
doc.recompute()

chamfer = doc.addObject("PartDesign::Chamfer", "Chamfer")
body17.addObject(chamfer)
chamfer.Base = (pocket1, edges_at(pocket1, [(18.45, 0, 14.364), (3.15, 0, 14.364)]))
chamfer.setExpression("Size", "Params.chamfer_size")

doc.recompute()
